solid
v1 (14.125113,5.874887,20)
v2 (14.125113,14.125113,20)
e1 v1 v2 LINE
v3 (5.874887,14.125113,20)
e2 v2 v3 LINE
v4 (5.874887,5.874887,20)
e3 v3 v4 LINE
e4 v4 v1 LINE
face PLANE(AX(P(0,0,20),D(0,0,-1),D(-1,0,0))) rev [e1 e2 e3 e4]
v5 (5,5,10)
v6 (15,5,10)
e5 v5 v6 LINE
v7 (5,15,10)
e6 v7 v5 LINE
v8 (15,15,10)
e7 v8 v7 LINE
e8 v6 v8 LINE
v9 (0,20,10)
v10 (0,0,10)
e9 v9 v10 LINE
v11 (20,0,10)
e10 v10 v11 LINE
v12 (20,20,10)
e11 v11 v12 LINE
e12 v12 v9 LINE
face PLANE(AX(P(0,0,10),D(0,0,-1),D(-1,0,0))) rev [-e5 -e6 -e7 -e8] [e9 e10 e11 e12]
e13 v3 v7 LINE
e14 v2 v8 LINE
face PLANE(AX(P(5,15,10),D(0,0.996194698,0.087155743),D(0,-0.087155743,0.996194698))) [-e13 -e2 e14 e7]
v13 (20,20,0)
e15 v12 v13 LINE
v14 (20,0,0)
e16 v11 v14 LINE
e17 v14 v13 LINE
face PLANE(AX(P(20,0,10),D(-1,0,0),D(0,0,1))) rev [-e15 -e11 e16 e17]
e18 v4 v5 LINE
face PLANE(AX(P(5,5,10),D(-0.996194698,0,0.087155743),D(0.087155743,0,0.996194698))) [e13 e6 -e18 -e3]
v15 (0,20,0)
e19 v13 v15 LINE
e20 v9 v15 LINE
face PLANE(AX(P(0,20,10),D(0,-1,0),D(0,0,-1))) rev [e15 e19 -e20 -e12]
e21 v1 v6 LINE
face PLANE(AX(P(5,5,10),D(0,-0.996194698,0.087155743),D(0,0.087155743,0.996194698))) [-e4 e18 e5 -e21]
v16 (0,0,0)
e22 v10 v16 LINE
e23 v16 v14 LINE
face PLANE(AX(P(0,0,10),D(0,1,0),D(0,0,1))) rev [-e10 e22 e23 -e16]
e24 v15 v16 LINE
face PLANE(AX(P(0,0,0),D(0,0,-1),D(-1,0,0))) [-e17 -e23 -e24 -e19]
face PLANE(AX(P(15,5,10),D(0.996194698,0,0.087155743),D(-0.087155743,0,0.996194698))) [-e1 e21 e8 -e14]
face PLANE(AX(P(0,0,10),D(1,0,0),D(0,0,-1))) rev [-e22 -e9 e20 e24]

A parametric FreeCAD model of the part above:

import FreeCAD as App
import Part
import Sketcher


def add_polygon(sketch, points):
    """Adds a closed chain of lines whose ends are joined by coincident constraints."""
    first, n = sketch.GeometryCount, len(points)
    for a, b in zip(points, points[1:] + points[:1]):
        sketch.addGeometry(Part.LineSegment(App.Vector(*a, 0), App.Vector(*b, 0)), False)
    for i in range(n):
        sketch.addConstraint(Sketcher.Constraint("Coincident", first + i, 2, first + (i + 1) % n, 1))

doc = App.newDocument("Part")
body = doc.addObject("PartDesign::Body", "Body")

# Sketch on XY plane
sketch1 = body.newObject("Sketcher::SketchObject", "Sketch")
sketch1.AttachmentSupport = (doc.getObject("XY_Plane"), [""])
sketch1.MapMode = "FlatFace"
add_polygon(sketch1, [(0, 20), (0, 0), (20, 0), (20, 20)])  # lines 0-3
sketch1.addConstraint([
    Sketcher.Constraint("Vertical", 0),
    Sketcher.Constraint("Horizontal", 1),
    Sketcher.Constraint("Vertical", 2),
    Sketcher.Constraint("Horizontal", 3),
    Sketcher.Constraint("Coincident", 0, 2, -1, 1),
    Sketcher.Constraint("Equal", 3, 0),
    Sketcher.Constraint("DistanceX", 1, 1, 1, 2, 20.0),
])
pad1 = body.newObject("PartDesign::Pad", "Pad")
pad1.Profile = sketch1
pad1.Length = 10

# Sketch on XY plane
sketch2 = body.newObject("Sketcher::SketchObject", "Sketch001")
sketch2.AttachmentSupport = (doc.getObject("XY_Plane"), [""])
sketch2.MapMode = "FlatFace"
sketch2.AttachmentOffset = App.Placement(App.Vector(0, 0, 10), App.Rotation())
add_polygon(sketch2, [(5, 15), (5, 5), (15, 5), (15, 15)])  # lines 0-3
sketch2.addConstraint([
    Sketcher.Constraint("Vertical", 0),
    Sketcher.Constraint("Horizontal", 1),
    Sketcher.Constraint("Vertical", 2),
    Sketcher.Constraint("Horizontal", 3),
    Sketcher.Constraint("Equal", 3, 0),
    Sketcher.Constraint("DistanceX", 1, 1, 1, 2, 10.0),
    Sketcher.Constraint("DistanceX", -1, 1, 0, 2, 5.0),
    Sketcher.Constraint("DistanceY", -1, 1, 0, 2, 5.0),
])
pad2 = body.newObject("PartDesign::Pad", "Pad001")
pad2.Profile = sketch2
pad2.Length = 10
pad2.TaperAngle = -5

doc.recompute()
